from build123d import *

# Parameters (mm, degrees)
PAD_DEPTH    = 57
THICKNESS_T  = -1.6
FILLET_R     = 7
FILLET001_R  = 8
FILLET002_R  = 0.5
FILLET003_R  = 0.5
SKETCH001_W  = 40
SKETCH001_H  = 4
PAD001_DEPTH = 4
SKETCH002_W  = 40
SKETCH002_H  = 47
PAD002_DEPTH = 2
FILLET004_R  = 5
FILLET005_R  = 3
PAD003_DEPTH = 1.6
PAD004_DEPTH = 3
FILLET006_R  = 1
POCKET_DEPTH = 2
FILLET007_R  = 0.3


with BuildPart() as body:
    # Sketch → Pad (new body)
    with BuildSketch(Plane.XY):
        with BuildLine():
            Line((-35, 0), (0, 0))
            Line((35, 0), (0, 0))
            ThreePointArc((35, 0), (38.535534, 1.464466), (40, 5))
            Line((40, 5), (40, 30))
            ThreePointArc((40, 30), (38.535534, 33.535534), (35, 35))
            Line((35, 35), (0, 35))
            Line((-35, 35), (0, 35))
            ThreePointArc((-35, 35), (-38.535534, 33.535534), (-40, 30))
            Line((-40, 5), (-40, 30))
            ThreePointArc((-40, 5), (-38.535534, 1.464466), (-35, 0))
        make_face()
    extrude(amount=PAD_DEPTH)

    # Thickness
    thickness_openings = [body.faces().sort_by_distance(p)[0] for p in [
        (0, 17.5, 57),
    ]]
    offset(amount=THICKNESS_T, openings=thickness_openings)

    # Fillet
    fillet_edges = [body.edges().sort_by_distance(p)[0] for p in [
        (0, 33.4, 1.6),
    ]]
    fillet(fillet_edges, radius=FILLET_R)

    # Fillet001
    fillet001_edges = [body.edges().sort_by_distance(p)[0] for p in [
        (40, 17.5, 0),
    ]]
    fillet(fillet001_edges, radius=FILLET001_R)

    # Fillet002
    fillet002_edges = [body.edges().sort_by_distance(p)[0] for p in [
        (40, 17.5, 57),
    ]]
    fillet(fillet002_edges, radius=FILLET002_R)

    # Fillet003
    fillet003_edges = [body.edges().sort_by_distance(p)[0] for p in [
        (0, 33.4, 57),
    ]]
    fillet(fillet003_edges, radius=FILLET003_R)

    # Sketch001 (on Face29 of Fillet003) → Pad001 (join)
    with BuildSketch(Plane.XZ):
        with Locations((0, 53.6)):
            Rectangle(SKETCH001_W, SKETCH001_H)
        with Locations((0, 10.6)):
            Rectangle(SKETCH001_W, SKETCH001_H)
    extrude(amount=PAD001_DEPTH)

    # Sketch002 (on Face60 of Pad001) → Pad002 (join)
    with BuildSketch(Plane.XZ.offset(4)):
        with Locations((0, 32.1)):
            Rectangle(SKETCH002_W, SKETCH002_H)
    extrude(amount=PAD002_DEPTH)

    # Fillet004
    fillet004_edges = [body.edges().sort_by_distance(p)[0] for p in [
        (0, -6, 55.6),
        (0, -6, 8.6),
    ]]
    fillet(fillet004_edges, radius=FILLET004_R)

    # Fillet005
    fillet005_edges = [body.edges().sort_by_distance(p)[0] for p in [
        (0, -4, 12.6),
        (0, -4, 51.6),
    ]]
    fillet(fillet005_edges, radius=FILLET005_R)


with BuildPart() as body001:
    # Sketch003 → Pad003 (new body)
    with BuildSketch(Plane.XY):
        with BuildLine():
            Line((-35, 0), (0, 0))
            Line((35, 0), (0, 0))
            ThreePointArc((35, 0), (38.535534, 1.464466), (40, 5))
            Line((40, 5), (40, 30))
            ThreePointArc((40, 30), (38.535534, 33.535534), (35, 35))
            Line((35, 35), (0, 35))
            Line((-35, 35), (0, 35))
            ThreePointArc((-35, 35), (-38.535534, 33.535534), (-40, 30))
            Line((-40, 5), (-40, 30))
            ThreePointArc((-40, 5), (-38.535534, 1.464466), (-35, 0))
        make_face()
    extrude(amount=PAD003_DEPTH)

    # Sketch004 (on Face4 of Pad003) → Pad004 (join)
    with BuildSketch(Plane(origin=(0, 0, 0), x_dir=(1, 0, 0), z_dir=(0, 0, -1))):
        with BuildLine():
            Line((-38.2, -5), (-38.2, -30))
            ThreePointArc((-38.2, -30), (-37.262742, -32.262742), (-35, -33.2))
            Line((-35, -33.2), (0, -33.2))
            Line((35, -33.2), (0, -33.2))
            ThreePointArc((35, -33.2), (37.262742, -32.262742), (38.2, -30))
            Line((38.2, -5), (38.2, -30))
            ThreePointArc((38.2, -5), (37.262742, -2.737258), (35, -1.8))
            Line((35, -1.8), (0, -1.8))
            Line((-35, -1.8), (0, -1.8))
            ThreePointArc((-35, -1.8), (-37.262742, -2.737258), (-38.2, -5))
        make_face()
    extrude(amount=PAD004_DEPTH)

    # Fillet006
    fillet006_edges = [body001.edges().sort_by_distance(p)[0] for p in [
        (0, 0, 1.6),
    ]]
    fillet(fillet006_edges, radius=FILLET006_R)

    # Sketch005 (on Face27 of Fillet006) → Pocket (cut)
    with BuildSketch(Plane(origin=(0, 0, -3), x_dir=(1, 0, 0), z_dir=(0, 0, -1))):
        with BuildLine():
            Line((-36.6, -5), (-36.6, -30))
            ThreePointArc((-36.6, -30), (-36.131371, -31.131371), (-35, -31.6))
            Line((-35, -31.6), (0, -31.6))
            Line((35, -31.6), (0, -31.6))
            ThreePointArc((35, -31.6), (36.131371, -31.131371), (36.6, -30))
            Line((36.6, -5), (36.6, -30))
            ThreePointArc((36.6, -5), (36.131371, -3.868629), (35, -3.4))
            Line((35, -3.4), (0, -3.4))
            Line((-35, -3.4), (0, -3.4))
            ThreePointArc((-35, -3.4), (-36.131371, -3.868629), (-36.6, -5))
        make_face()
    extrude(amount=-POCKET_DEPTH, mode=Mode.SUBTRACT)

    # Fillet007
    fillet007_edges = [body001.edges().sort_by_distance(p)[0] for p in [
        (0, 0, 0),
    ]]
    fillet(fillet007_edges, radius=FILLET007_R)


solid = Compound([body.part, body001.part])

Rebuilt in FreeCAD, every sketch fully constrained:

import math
import FreeCAD as App
import Part
import Sketcher

V = App.Vector
Q = App.Units.Quantity


def edges_at(feature, points):
    """Names of the edges that pass closest to the given points."""
    edges = feature.Shape.Edges
    near = lambda p: min(range(len(edges)), key=lambda i: edges[i].distToShape(Part.Vertex(*p))[0])
    return sorted({f"Edge{near(p) + 1}" for p in points})


def faces_at(feature, points):
    """Names of the faces that lie closest to the given points."""
    faces = feature.Shape.Faces
    near = lambda p: min(range(len(faces)), key=lambda i: faces[i].distToShape(Part.Vertex(*p))[0])
    return sorted({f"Face{near(p) + 1}" for p in points})

doc = App.newDocument("Part")
params = doc.addObject("Spreadsheet::Sheet", "Params")
for row, (alias, value) in enumerate([
    ("sketch1_radius", "5 mm"),
    ("sketch1_width", "70 mm"),
    ("sketch1_height", "25 mm"),
    ("pad1_length", "57 mm"),
    ("thickness_wall", "1.6 mm"),
    ("fillet_radius", "7 mm"),
    ("fillet2_radius", "8 mm"),
    ("fillet3_radius", "0.5 mm"),
    ("fillet4_radius", "0.5 mm"),
    ("sketch2_width", "40 mm"),
    ("sketch2_height", "4 mm"),
    ("pad2_length", "4 mm"),
    ("sketch3_width", "40 mm"),
    ("sketch3_height", "47 mm"),
    ("pad3_length", "2 mm"),
    ("fillet5_radius", "5 mm"),
    ("fillet6_radius", "3 mm"),
    ("sketch4_radius", "5 mm"),
    ("sketch4_width", "70 mm"),
    ("sketch4_height", "25 mm"),
    ("pad4_length", "1.6 mm"),
    ("sketch5_radius", "3.199999 mm"),
    ("sketch5_width", "70 mm"),
    ("sketch5_height", "25 mm"),
    ("pad5_length", "3 mm"),
    ("fillet7_radius", "1 mm"),
    ("sketch6_radius", "1.599999 mm"),
    ("sketch6_width", "70 mm"),
    ("sketch6_height", "25 mm"),
    ("pocket1_length", "2 mm"),
    ("fillet8_radius", "0.3 mm"),
], start=1):
    params.set(f"A{row}", alias)
    params.set(f"B{row}", "=" + value)
    params.setAlias(f"B{row}", alias)

body = doc.addObject("PartDesign::Body", "Body")

sketch1 = body.newObject("Sketcher::SketchObject", "Sketch")
sketch1.AttachmentSupport = (doc.getObject("XY_Plane"), [""])
sketch1.MapMode = "FlatFace"
sketch1.addGeometry(Part.LineSegment(V(-35, 0, 0), V(35, 0, 0)), False)
sketch1.addGeometry(Part.ArcOfCircle(Part.Circle(V(35, 5, 0), V(0, 0, 1), 5), math.radians(-90.000004), math.radians(0.000004)), False)
sketch1.addGeometry(Part.LineSegment(V(40, 5, 0), V(40, 30, 0)), False)
sketch1.addGeometry(Part.ArcOfCircle(Part.Circle(V(35, 30, 0), V(0, 0, 1), 5), math.radians(-0.000004), math.radians(90.000004)), False)
sketch1.addGeometry(Part.LineSegment(V(35, 35, 0), V(-35, 35, 0)), False)
sketch1.addGeometry(Part.ArcOfCircle(Part.Circle(V(-35, 30, 0), V(0, 0, 1), 5), math.radians(89.999996), math.radians(180.000004)), False)
sketch1.addGeometry(Part.LineSegment(V(-40, 30, 0), V(-40, 5, 0)), False)
sketch1.addGeometry(Part.ArcOfCircle(Part.Circle(V(-35, 5, 0), V(0, 0, 1), 5), math.radians(179.999996), math.radians(270.000004)), False)
sketch1.addConstraint(Sketcher.Constraint("Tangent", 0, 2, 1, 1))
sketch1.addConstraint(Sketcher.Constraint("Tangent", 1, 2, 2, 1))
sketch1.addConstraint(Sketcher.Constraint("Tangent", 2, 2, 3, 1))
sketch1.addConstraint(Sketcher.Constraint("Tangent", 3, 2, 4, 1))
sketch1.addConstraint(Sketcher.Constraint("Tangent", 4, 2, 5, 1))
sketch1.addConstraint(Sketcher.Constraint("Tangent", 5, 2, 6, 1))
sketch1.addConstraint(Sketcher.Constraint("Tangent", 6, 2, 7, 1))
sketch1.addConstraint(Sketcher.Constraint("Tangent", 7, 2, 0, 1))
sketch1.addConstraint(Sketcher.Constraint("Horizontal", 0))
sketch1.addConstraint(Sketcher.Constraint("Vertical", 2))
sketch1.addConstraint(Sketcher.Constraint("Horizontal", 4))
sketch1.addConstraint(Sketcher.Constraint("Vertical", 6))
sketch1.addConstraint(Sketcher.Constraint("Equal", 1, 3))
sketch1.addConstraint(Sketcher.Constraint("Equal", 3, 5))
sketch1.addConstraint(Sketcher.Constraint("Equal", 5, 7))
sketch1.addConstraint(Sketcher.Constraint("Symmetric", 0, 2, 7, 2, -1, 1))
sketch1.addConstraint(Sketcher.Constraint("Radius", 1, Q("5 mm")))
sketch1.addConstraint(Sketcher.Constraint("DistanceX", 0, 1, 0, 2, Q("70 mm")))
sketch1.addConstraint(Sketcher.Constraint("DistanceY", 2, 1, 2, 2, Q("25 mm")))
sketch1.setExpression("Constraints[16]", "Params.sketch1_radius")
sketch1.setExpression("Constraints[17]", "Params.sketch1_width")
sketch1.setExpression("Constraints[18]", "Params.sketch1_height")
pad1 = body.newObject("PartDesign::Pad", "Pad")
pad1.Profile = sketch1
pad1.setExpression("Length", "Params.pad1_length")
doc.recompute()

thickness = body.newObject("PartDesign::Thickness", "Thickness")
thickness.Base = (pad1, faces_at(pad1, [(0, 17.5, 57)]))
thickness.setExpression("Value", "Params.thickness_wall")
thickness.Reversed = True
thickness.Join = "Arc"
doc.recompute()

fillet = body.newObject("PartDesign::Fillet", "Fillet")
fillet.Base = (thickness, edges_at(thickness, [(0, 33.4, 1.6)]))
fillet.setExpression("Radius", "Params.fillet_radius")
doc.recompute()

fillet2 = body.newObject("PartDesign::Fillet", "Fillet001")
fillet2.Base = (fillet, edges_at(fillet, [(40, 17.5, 0)]))
fillet2.setExpression("Radius", "Params.fillet2_radius")
doc.recompute()

fillet3 = body.newObject("PartDesign::Fillet", "Fillet002")
fillet3.Base = (fillet2, edges_at(fillet2, [(40, 17.5, 57)]))
fillet3.setExpression("Radius", "Params.fillet3_radius")
doc.recompute()

fillet4 = body.newObject("PartDesign::Fillet", "Fillet003")
fillet4.Base = (fillet3, edges_at(fillet3, [(0, 33.4, 57)]))
fillet4.setExpression("Radius", "Params.fillet4_radius")

sketch2 = body.newObject("Sketcher::SketchObject", "Sketch001")
sketch2.AttachmentSupport = (doc.getObject("XZ_Plane"), [""])
sketch2.MapMode = "FlatFace"
sketch2.addGeometry(Part.LineSegment(V(-20, 55.6, 0), V(-20, 51.6, 0)), False)
sketch2.addGeometry(Part.LineSegment(V(-20, 51.6, 0), V(20, 51.6, 0)), False)
sketch2.addGeometry(Part.LineSegment(V(20, 51.6, 0), V(20, 55.6, 0)), False)
sketch2.addGeometry(Part.LineSegment(V(20, 55.6, 0), V(-20, 55.6, 0)), False)
sketch2.addGeometry(Part.LineSegment(V(-20, 12.6, 0), V(-20, 8.6, 0)), False)
sketch2.addGeometry(Part.LineSegment(V(-20, 8.6, 0), V(20, 8.6, 0)), False)
sketch2.addGeometry(Part.LineSegment(V(20, 8.6, 0), V(20, 12.6, 0)), False)
sketch2.addGeometry(Part.LineSegment(V(20, 12.6, 0), V(-20, 12.6, 0)), False)
sketch2.addConstraint(Sketcher.Constraint("Coincident", 0, 2, 1, 1))
sketch2.addConstraint(Sketcher.Constraint("Coincident", 1, 2, 2, 1))
sketch2.addConstraint(Sketcher.Constraint("Coincident", 2, 2, 3, 1))
sketch2.addConstraint(Sketcher.Constraint("Coincident", 3, 2, 0, 1))
sketch2.addConstraint(Sketcher.Constraint("Coincident", 4, 2, 5, 1))
sketch2.addConstraint(Sketcher.Constraint("Coincident", 5, 2, 6, 1))
sketch2.addConstraint(Sketcher.Constraint("Coincident", 6, 2, 7, 1))
sketch2.addConstraint(Sketcher.Constraint("Coincident", 7, 2, 4, 1))
sketch2.addConstraint(Sketcher.Constraint("Vertical", 0))
sketch2.addConstraint(Sketcher.Constraint("Horizontal", 1))
sketch2.addConstraint(Sketcher.Constraint("Vertical", 2))
sketch2.addConstraint(Sketcher.Constraint("Horizontal", 3))
sketch2.addConstraint(Sketcher.Constraint("Vertical", 4))
sketch2.addConstraint(Sketcher.Constraint("Horizontal", 5))
sketch2.addConstraint(Sketcher.Constraint("Vertical", 6))
sketch2.addConstraint(Sketcher.Constraint("Horizontal", 7))
sketch2.addConstraint(Sketcher.Constraint("Vertical", 3, 2, 4, 2))
sketch2.addConstraint(Sketcher.Constraint("Vertical", 2, 2, 5, 2))
sketch2.addConstraint(Sketcher.Constraint("Equal", 2, 4))
sketch2.addConstraint(Sketcher.Constraint("DistanceX", 1, 1, 1, 2, Q("40 mm")))
sketch2.addConstraint(Sketcher.Constraint("DistanceY", 0, 2, 0, 1, Q("4 mm")))
sketch2.addConstraint(Sketcher.Constraint("DistanceX", 0, 2, -1, 1, Q("20 mm")))
sketch2.addConstraint(Sketcher.Constraint("DistanceY", 4, 2, 0, 2, Q("43 mm")))
sketch2.addConstraint(Sketcher.Constraint("DistanceY", -1, 1, 0, 2, Q("51.6 mm")))
sketch2.setExpression("Constraints[19]", "Params.sketch2_width")
sketch2.setExpression("Constraints[20]", "Params.sketch2_height")
pad2 = body.newObject("PartDesign::Pad", "Pad001")
pad2.Profile = sketch2
pad2.setExpression("Length", "Params.pad2_length")

sketch3 = body.newObject("Sketcher::SketchObject", "Sketch002")
sketch3.AttachmentSupport = (doc.getObject("XZ_Plane"), [""])
sketch3.MapMode = "FlatFace"
sketch3.AttachmentOffset = App.Placement(V(0, 0, 4), App.Rotation())
sketch3.addGeometry(Part.LineSegment(V(-20, 55.6, 0), V(-20, 8.6, 0)), False)
sketch3.addGeometry(Part.LineSegment(V(-20, 8.6, 0), V(20, 8.6, 0)), False)
sketch3.addGeometry(Part.LineSegment(V(20, 8.6, 0), V(20, 55.6, 0)), False)
sketch3.addGeometry(Part.LineSegment(V(20, 55.6, 0), V(-20, 55.6, 0)), False)
sketch3.addConstraint(Sketcher.Constraint("Coincident", 0, 2, 1, 1))
sketch3.addConstraint(Sketcher.Constraint("Coincident", 1, 2, 2, 1))
sketch3.addConstraint(Sketcher.Constraint("Coincident", 2, 2, 3, 1))
sketch3.addConstraint(Sketcher.Constraint("Coincident", 3, 2, 0, 1))
sketch3.addConstraint(Sketcher.Constraint("Vertical", 0))
sketch3.addConstraint(Sketcher.Constraint("Horizontal", 1))
sketch3.addConstraint(Sketcher.Constraint("Vertical", 2))
sketch3.addConstraint(Sketcher.Constraint("Horizontal", 3))
sketch3.addConstraint(Sketcher.Constraint("DistanceX", 1, 1, 1, 2, Q("40 mm")))
sketch3.addConstraint(Sketcher.Constraint("DistanceY", 0, 2, 0, 1, Q("47 mm")))
sketch3.addConstraint(Sketcher.Constraint("DistanceX", 0, 2, -1, 1, Q("20 mm")))
sketch3.addConstraint(Sketcher.Constraint("DistanceY", -1, 1, 0, 2, Q("8.6 mm")))
sketch3.setExpression("Constraints[8]", "Params.sketch3_width")
sketch3.setExpression("Constraints[9]", "Params.sketch3_height")
pad3 = body.newObject("PartDesign::Pad", "Pad002")
pad3.Profile = sketch3
pad3.setExpression("Length", "Params.pad3_length")
doc.recompute()

fillet5 = body.newObject("PartDesign::Fillet", "Fillet004")
fillet5.Base = (pad3, edges_at(pad3, [(0, -6, 55.6), (0, -6, 8.6)]))
fillet5.setExpression("Radius", "Params.fillet5_radius")
doc.recompute()

fillet6 = body.newObject("PartDesign::Fillet", "Fillet005")
fillet6.Base = (fillet5, edges_at(fillet5, [(0, -4, 12.6), (0, -4, 51.6)]))
fillet6.setExpression("Radius", "Params.fillet6_radius")
body2 = doc.addObject("PartDesign::Body", "Body001")

sketch4 = body2.newObject("Sketcher::SketchObject", "Sketch003")
sketch4.AttachmentSupport = (doc.getObject("XY_Plane001"), [""])
sketch4.MapMode = "FlatFace"
sketch4.addGeometry(Part.LineSegment(V(-35, 0, 0), V(35, 0, 0)), False)
sketch4.addGeometry(Part.ArcOfCircle(Part.Circle(V(35, 5, 0), V(0, 0, 1), 5), math.radians(-90.000004), math.radians(0.000004)), False)
sketch4.addGeometry(Part.LineSegment(V(40, 5, 0), V(40, 30, 0)), False)
sketch4.addGeometry(Part.ArcOfCircle(Part.Circle(V(35, 30, 0), V(0, 0, 1), 5), math.radians(-0.000004), math.radians(90.000004)), False)
sketch4.addGeometry(Part.LineSegment(V(35, 35, 0), V(-35, 35, 0)), False)
sketch4.addGeometry(Part.ArcOfCircle(Part.Circle(V(-35, 30, 0), V(0, 0, 1), 5), math.radians(89.999996), math.radians(180.000004)), False)
sketch4.addGeometry(Part.LineSegment(V(-40, 30, 0), V(-40, 5, 0)), False)
sketch4.addGeometry(Part.ArcOfCircle(Part.Circle(V(-35, 5, 0), V(0, 0, 1), 5), math.radians(179.999996), math.radians(270.000004)), False)
sketch4.addConstraint(Sketcher.Constraint("Tangent", 0, 2, 1, 1))
sketch4.addConstraint(Sketcher.Constraint("Tangent", 1, 2, 2, 1))
sketch4.addConstraint(Sketcher.Constraint("Tangent", 2, 2, 3, 1))
sketch4.addConstraint(Sketcher.Constraint("Tangent", 3, 2, 4, 1))
sketch4.addConstraint(Sketcher.Constraint("Tangent", 4, 2, 5, 1))
sketch4.addConstraint(Sketcher.Constraint("Tangent", 5, 2, 6, 1))
sketch4.addConstraint(Sketcher.Constraint("Tangent", 6, 2, 7, 1))
sketch4.addConstraint(Sketcher.Constraint("Tangent", 7, 2, 0, 1))
sketch4.addConstraint(Sketcher.Constraint("Horizontal", 0))
sketch4.addConstraint(Sketcher.Constraint("Vertical", 2))
sketch4.addConstraint(Sketcher.Constraint("Horizontal", 4))
sketch4.addConstraint(Sketcher.Constraint("Vertical", 6))
sketch4.addConstraint(Sketcher.Constraint("Equal", 1, 3))
sketch4.addConstraint(Sketcher.Constraint("Equal", 3, 5))
sketch4.addConstraint(Sketcher.Constraint("Equal", 5, 7))
sketch4.addConstraint(Sketcher.Constraint("Symmetric", 0, 2, 7, 2, -1, 1))
sketch4.addConstraint(Sketcher.Constraint("Radius", 1, Q("5 mm")))
sketch4.addConstraint(Sketcher.Constraint("DistanceX", 0, 1, 0, 2, Q("70 mm")))
sketch4.addConstraint(Sketcher.Constraint("DistanceY", 2, 1, 2, 2, Q("25 mm")))
sketch4.setExpression("Constraints[16]", "Params.sketch4_radius")
sketch4.setExpression("Constraints[17]", "Params.sketch4_width")
sketch4.setExpression("Constraints[18]", "Params.sketch4_height")
pad4 = body2.newObject("PartDesign::Pad", "Pad003")
pad4.Profile = sketch4
pad4.setExpression("Length", "Params.pad4_length")

sketch5 = body2.newObject("Sketcher::SketchObject", "Sketch004")
sketch5.AttachmentSupport = (doc.getObject("XY_Plane001"), [""])
sketch5.MapMode = "FlatFace"
sketch5.addGeometry(Part.LineSegment(V(-38.2, 5, 0), V(-38.2, 30, 0)), False)
sketch5.addGeometry(Part.ArcOfCircle(Part.Circle(V(-35.000001, 30.000001, 0), V(0, 0, 1), 3.199999), math.radians(89.999982), math.radians(180.000018)), False)
sketch5.addGeometry(Part.LineSegment(V(-35, 33.2, 0), V(35, 33.2, 0)), False)
sketch5.addGeometry(Part.ArcOfCircle(Part.Circle(V(35.000001, 30.000001, 0), V(0, 0, 1), 3.199999), math.radians(-0.000018), math.radians(90.000018)), False)
sketch5.addGeometry(Part.LineSegment(V(38.2, 30, 0), V(38.2, 5, 0)), False)
sketch5.addGeometry(Part.ArcOfCircle(Part.Circle(V(35.000001, 4.999999, 0), V(0, 0, 1), 3.199999), math.radians(-90.000018), math.radians(0.000018)), False)
sketch5.addGeometry(Part.LineSegment(V(35, 1.8, 0), V(-35, 1.8, 0)), False)
sketch5.addGeometry(Part.ArcOfCircle(Part.Circle(V(-35.000001, 4.999999, 0), V(0, 0, 1), 3.199999), math.radians(179.999982), math.radians(270.000018)), False)
sketch5.addConstraint(Sketcher.Constraint("Tangent", 0, 2, 1, 2))
sketch5.addConstraint(Sketcher.Constraint("Tangent", 1, 1, 2, 1))
sketch5.addConstraint(Sketcher.Constraint("Tangent", 2, 2, 3, 2))
sketch5.addConstraint(Sketcher.Constraint("Tangent", 3, 1, 4, 1))
sketch5.addConstraint(Sketcher.Constraint("Tangent", 4, 2, 5, 2))
sketch5.addConstraint(Sketcher.Constraint("Tangent", 5, 1, 6, 1))
sketch5.addConstraint(Sketcher.Constraint("Tangent", 6, 2, 7, 2))
sketch5.addConstraint(Sketcher.Constraint("Tangent", 7, 1, 0, 1))
sketch5.addConstraint(Sketcher.Constraint("Vertical", 0))
sketch5.addConstraint(Sketcher.Constraint("Horizontal", 2))
sketch5.addConstraint(Sketcher.Constraint("Vertical", 4))
sketch5.addConstraint(Sketcher.Constraint("Horizontal", 6))
sketch5.addConstraint(Sketcher.Constraint("Equal", 1, 3))
sketch5.addConstraint(Sketcher.Constraint("Equal", 3, 5))
sketch5.addConstraint(Sketcher.Constraint("Equal", 5, 7))
sketch5.addConstraint(Sketcher.Constraint("Radius", 1, Q("3.199999 mm")))
sketch5.addConstraint(Sketcher.Constraint("DistanceX", 2, 1, 2, 2, Q("70 mm")))
sketch5.addConstraint(Sketcher.Constraint("DistanceY", 0, 1, 0, 2, Q("25 mm")))
sketch5.addConstraint(Sketcher.Constraint("DistanceX", 1, 3, -1, 1, Q("35.000001 mm")))
sketch5.addConstraint(Sketcher.Constraint("DistanceY", -1, 1, 1, 3, Q("30.000001 mm")))
sketch5.setExpression("Constraints[15]", "Params.sketch5_radius")
sketch5.setExpression("Constraints[16]", "Params.sketch5_width")
sketch5.setExpression("Constraints[17]", "Params.sketch5_height")
pad5 = body2.newObject("PartDesign::Pad", "Pad004")
pad5.Profile = sketch5
pad5.setExpression("Length", "Params.pad5_length")
pad5.Reversed = True
doc.recompute()

fillet7 = body2.newObject("PartDesign::Fillet", "Fillet006")
fillet7.Base = (pad5, edges_at(pad5, [(0, 0, 1.6)]))
fillet7.setExpression("Radius", "Params.fillet7_radius")

sketch6 = body2.newObject("Sketcher::SketchObject", "Sketch005")
sketch6.AttachmentSupport = (doc.getObject("XY_Plane001"), [""])
sketch6.MapMode = "FlatFace"
sketch6.AttachmentOffset = App.Placement(V(0, 0, -3), App.Rotation())
sketch6.addGeometry(Part.LineSegment(V(-36.6, 5, 0), V(-36.6, 30, 0)), False)
sketch6.addGeometry(Part.ArcOfCircle(Part.Circle(V(-35.000001, 30.000001, 0), V(0, 0, 1), 1.599999), math.radians(89.999982), math.radians(180.000018)), False)
sketch6.addGeometry(Part.LineSegment(V(-35, 31.6, 0), V(35, 31.6, 0)), False)
sketch6.addGeometry(Part.ArcOfCircle(Part.Circle(V(35.000001, 30.000001, 0), V(0, 0, 1), 1.599999), math.radians(-0.000018), math.radians(90.000018)), False)
sketch6.addGeometry(Part.LineSegment(V(36.6, 30, 0), V(36.6, 5, 0)), False)
sketch6.addGeometry(Part.ArcOfCircle(Part.Circle(V(35.000001, 4.999999, 0), V(0, 0, 1), 1.599999), math.radians(-90.000018), math.radians(0.000018)), False)
sketch6.addGeometry(Part.LineSegment(V(35, 3.4, 0), V(-35, 3.4, 0)), False)
sketch6.addGeometry(Part.ArcOfCircle(Part.Circle(V(-35.000001, 4.999999, 0), V(0, 0, 1), 1.599999), math.radians(179.999982), math.radians(270.000018)), False)
sketch6.addConstraint(Sketcher.Constraint("Tangent", 0, 2, 1, 2))
sketch6.addConstraint(Sketcher.Constraint("Tangent", 1, 1, 2, 1))
sketch6.addConstraint(Sketcher.Constraint("Tangent", 2, 2, 3, 2))
sketch6.addConstraint(Sketcher.Constraint("Tangent", 3, 1, 4, 1))
sketch6.addConstraint(Sketcher.Constraint("Tangent", 4, 2, 5, 2))
sketch6.addConstraint(Sketcher.Constraint("Tangent", 5, 1, 6, 1))
sketch6.addConstraint(Sketcher.Constraint("Tangent", 6, 2, 7, 2))
sketch6.addConstraint(Sketcher.Constraint("Tangent", 7, 1, 0, 1))
sketch6.addConstraint(Sketcher.Constraint("Vertical", 0))
sketch6.addConstraint(Sketcher.Constraint("Horizontal", 2))
sketch6.addConstraint(Sketcher.Constraint("Vertical", 4))
sketch6.addConstraint(Sketcher.Constraint("Horizontal", 6))
sketch6.addConstraint(Sketcher.Constraint("Equal", 1, 3))
sketch6.addConstraint(Sketcher.Constraint("Equal", 3, 5))
sketch6.addConstraint(Sketcher.Constraint("Equal", 5, 7))
sketch6.addConstraint(Sketcher.Constraint("Radius", 1, Q("1.599999 mm")))
sketch6.addConstraint(Sketcher.Constraint("DistanceX", 2, 1, 2, 2, Q("70 mm")))
sketch6.addConstraint(Sketcher.Constraint("DistanceY", 0, 1, 0, 2, Q("25 mm")))
sketch6.addConstraint(Sketcher.Constraint("DistanceX", 1, 3, -1, 1, Q("35.000001 mm")))
sketch6.addConstraint(Sketcher.Constraint("DistanceY", -1, 1, 1, 3, Q("30.000001 mm")))
sketch6.setExpression("Constraints[15]", "Params.sketch6_radius")
sketch6.setExpression("Constraints[16]", "Params.sketch6_width")
sketch6.setExpression("Constraints[17]", "Params.sketch6_height")
pocket1 = body2.newObject("PartDesign::Pocket", "Pocket")
pocket1.Profile = sketch6
pocket1.setExpression("Length", "Params.pocket1_length")
pocket1.Reversed = True
doc.recompute()

fillet8 = body2.newObject("PartDesign::Fillet", "Fillet007")
fillet8.Base = (pocket1, edges_at(pocket1, [(0, 0, 0)]))
fillet8.setExpression("Radius", "Params.fillet8_radius")

doc.recompute()
